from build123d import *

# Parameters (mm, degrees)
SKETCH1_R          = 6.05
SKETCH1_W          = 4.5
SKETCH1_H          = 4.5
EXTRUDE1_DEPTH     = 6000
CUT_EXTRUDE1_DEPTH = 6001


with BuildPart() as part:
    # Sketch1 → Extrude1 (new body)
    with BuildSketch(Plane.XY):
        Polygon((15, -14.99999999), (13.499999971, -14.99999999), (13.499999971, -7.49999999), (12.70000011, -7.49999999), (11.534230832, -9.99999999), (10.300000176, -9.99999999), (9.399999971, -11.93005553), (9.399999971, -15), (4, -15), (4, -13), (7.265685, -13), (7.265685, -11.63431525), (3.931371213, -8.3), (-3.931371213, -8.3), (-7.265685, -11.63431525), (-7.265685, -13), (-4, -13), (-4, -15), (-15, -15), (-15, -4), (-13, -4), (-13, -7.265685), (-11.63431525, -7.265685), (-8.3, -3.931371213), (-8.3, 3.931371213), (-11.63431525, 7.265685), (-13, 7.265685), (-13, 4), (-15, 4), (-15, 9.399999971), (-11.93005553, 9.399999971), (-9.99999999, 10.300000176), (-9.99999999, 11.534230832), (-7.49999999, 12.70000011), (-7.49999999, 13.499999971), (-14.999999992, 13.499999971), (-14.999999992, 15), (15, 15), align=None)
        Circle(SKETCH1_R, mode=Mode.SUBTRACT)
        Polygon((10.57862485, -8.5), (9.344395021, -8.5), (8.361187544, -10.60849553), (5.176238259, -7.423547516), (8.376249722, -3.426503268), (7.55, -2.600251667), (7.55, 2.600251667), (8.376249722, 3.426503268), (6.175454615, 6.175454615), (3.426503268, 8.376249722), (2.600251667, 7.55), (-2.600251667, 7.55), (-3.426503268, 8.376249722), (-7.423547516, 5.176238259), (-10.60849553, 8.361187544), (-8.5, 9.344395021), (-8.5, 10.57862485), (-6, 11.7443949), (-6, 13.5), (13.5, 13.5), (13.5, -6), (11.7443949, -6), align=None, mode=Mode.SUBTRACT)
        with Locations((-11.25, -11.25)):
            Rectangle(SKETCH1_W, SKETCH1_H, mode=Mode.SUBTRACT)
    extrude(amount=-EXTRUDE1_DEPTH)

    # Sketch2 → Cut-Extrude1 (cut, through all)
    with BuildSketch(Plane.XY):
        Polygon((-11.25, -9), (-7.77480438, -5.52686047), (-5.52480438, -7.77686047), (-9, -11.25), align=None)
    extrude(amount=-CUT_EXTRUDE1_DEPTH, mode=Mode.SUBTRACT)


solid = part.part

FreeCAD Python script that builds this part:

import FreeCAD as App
import Part
import Sketcher
from FreeCAD import Vector
Q = App.Units.Quantity

doc = App.newDocument("Part")
body = doc.addObject("PartDesign::Body", "Body")

sketch1 = body.newObject("Sketcher::SketchObject", "Sketch")
sketch1.AttachmentSupport = (doc.getObject("XY_Plane"), [""])
sketch1.MapMode = "FlatFace"
sketch1.addGeometry([
    Part.LineSegment(Vector(13.5, -15, 0), Vector(15, -15, 0)),
    Part.LineSegment(Vector(15, -15, 0), Vector(15, 15, 0)),
    Part.LineSegment(Vector(15, 15, 0), Vector(-15, 15, 0)),
    Part.LineSegment(Vector(-15, 15, 0), Vector(-15, 13.5, 0)),
    Part.LineSegment(Vector(-15, 13.5, 0), Vector(-7.5, 13.5, 0)),
    Part.LineSegment(Vector(-7.5, 13.5, 0), Vector(-7.5, 12.7, 0)),
    Part.LineSegment(Vector(-7.5, 12.7, 0), Vector(-10, 11.5, 0)),
    Part.LineSegment(Vector(-10, 11.5, 0), Vector(-10, 10.3, 0)),
    Part.LineSegment(Vector(-10, 10.3, 0), Vector(-11.9, 9.4, 0)),
    Part.LineSegment(Vector(-11.9, 9.4, 0), Vector(-15, 9.4, 0)),
    Part.LineSegment(Vector(-15, 9.4, 0), Vector(-15, 4, 0)),
    Part.LineSegment(Vector(-15, 4, 0), Vector(-13, 4, 0)),
    Part.LineSegment(Vector(-13, 4, 0), Vector(-13, 7.3, 0)),
    Part.LineSegment(Vector(-13, 7.3, 0), Vector(-11.6, 7.3, 0)),
    Part.LineSegment(Vector(-11.6, 7.3, 0), Vector(-8.3, 3.9, 0)),
    Part.LineSegment(Vector(-8.3, 3.9, 0), Vector(-8.3, -3.9, 0)),
    Part.LineSegment(Vector(-8.3, -3.9, 0), Vector(-11.6, -7.3, 0)),
    Part.LineSegment(Vector(-11.6, -7.3, 0), Vector(-13, -7.3, 0)),
    Part.LineSegment(Vector(-13, -7.3, 0), Vector(-13, -4, 0)),
    Part.LineSegment(Vector(-13, -4, 0), Vector(-15, -4, 0)),
    Part.LineSegment(Vector(-15, -4, 0), Vector(-15, -15, 0)),
    Part.LineSegment(Vector(-15, -15, 0), Vector(-4, -15, 0)),
    Part.LineSegment(Vector(-4, -15, 0), Vector(-4, -13, 0)),
    Part.LineSegment(Vector(-4, -13, 0), Vector(-7.3, -13, 0)),
    Part.LineSegment(Vector(-7.3, -13, 0), Vector(-7.3, -11.6, 0)),
    Part.LineSegment(Vector(-7.3, -11.6, 0), Vector(-3.9, -8.3, 0)),
    Part.LineSegment(Vector(-3.9, -8.3, 0), Vector(3.9, -8.3, 0)),
    Part.LineSegment(Vector(3.9, -8.3, 0), Vector(7.3, -11.6, 0)),
    Part.LineSegment(Vector(7.3, -11.6, 0), Vector(7.3, -13, 0)),
    Part.LineSegment(Vector(7.3, -13, 0), Vector(4, -13, 0)),
    Part.LineSegment(Vector(4, -13, 0), Vector(4, -15, 0)),
    Part.LineSegment(Vector(4, -15, 0), Vector(9.4, -15, 0)),
    Part.LineSegment(Vector(9.4, -15, 0), Vector(9.4, -11.9, 0)),
    Part.LineSegment(Vector(9.4, -11.9, 0), Vector(10.3, -10, 0)),
    Part.LineSegment(Vector(10.3, -10, 0), Vector(11.5, -10, 0)),
    Part.LineSegment(Vector(11.5, -10, 0), Vector(12.7, -7.5, 0)),
    Part.LineSegment(Vector(12.7, -7.5, 0), Vector(13.5, -7.5, 0)),
    Part.LineSegment(Vector(13.5, -7.5, 0), Vector(13.5, -15, 0)),
    Part.LineSegment(Vector(-13.5, -13.5, 0), Vector(-13.5, -9, 0)),
    Part.LineSegment(Vector(-13.5, -9, 0), Vector(-9, -9, 0)),
    Part.LineSegment(Vector(-9, -9, 0), Vector(-9, -13.5, 0)),
    Part.LineSegment(Vector(-9, -13.5, 0), Vector(-13.5, -13.5, 0)),
    Part.LineSegment(Vector(10.6, -8.5, 0), Vector(9.3, -8.5, 0)),
    Part.LineSegment(Vector(9.3, -8.5, 0), Vector(8.4, -10.6, 0)),
    Part.LineSegment(Vector(8.4, -10.6, 0), Vector(5.2, -7.4, 0)),
    Part.LineSegment(Vector(5.2, -7.4, 0), Vector(8.4, -3.4, 0)),
    Part.LineSegment(Vector(8.4, -3.4, 0), Vector(7.5, -2.6, 0)),
    Part.LineSegment(Vector(7.5, -2.6, 0), Vector(7.5, 2.6, 0)),
    Part.LineSegment(Vector(7.5, 2.6, 0), Vector(8.4, 3.4, 0)),
    Part.LineSegment(Vector(8.4, 3.4, 0), Vector(6.2, 6.2, 0)),
    Part.LineSegment(Vector(6.2, 6.2, 0), Vector(3.4, 8.4, 0)),
    Part.LineSegment(Vector(3.4, 8.4, 0), Vector(2.6, 7.5, 0)),
    Part.LineSegment(Vector(2.6, 7.5, 0), Vector(-2.6, 7.5, 0)),
    Part.LineSegment(Vector(-2.6, 7.5, 0), Vector(-3.4, 8.4, 0)),
    Part.LineSegment(Vector(-3.4, 8.4, 0), Vector(-7.4, 5.2, 0)),
    Part.LineSegment(Vector(-7.4, 5.2, 0), Vector(-10.6, 8.4, 0)),
    Part.LineSegment(Vector(-10.6, 8.4, 0), Vector(-8.5, 9.3, 0)),
    Part.LineSegment(Vector(-8.5, 9.3, 0), Vector(-8.5, 10.6, 0)),
    Part.LineSegment(Vector(-8.5, 10.6, 0), Vector(-6, 11.7, 0)),
    Part.LineSegment(Vector(-6, 11.7, 0), Vector(-6, 13.5, 0)),
    Part.LineSegment(Vector(-6, 13.5, 0), Vector(13.5, 13.5, 0)),
    Part.LineSegment(Vector(13.5, 13.5, 0), Vector(13.5, -6, 0)),
    Part.LineSegment(Vector(13.5, -6, 0), Vector(11.7, -6, 0)),
    Part.LineSegment(Vector(11.7, -6, 0), Vector(10.6, -8.5, 0)),
    Part.Circle(Vector(0, 0, 0), Vector(0, 0, 1), 6),
], False)
sketch1.addConstraint([
    Sketcher.Constraint("Coincident", 0, 2, 1, 1),
    Sketcher.Constraint("Coincident", 1, 2, 2, 1),
    Sketcher.Constraint("Coincident", 2, 2, 3, 1),
    Sketcher.Constraint("Coincident", 3, 2, 4, 1),
    Sketcher.Constraint("Coincident", 4, 2, 5, 1),
    Sketcher.Constraint("Coincident", 5, 2, 6, 1),
    Sketcher.Constraint("Coincident", 6, 2, 7, 1),
    Sketcher.Constraint("Coincident", 7, 2, 8, 1),
    Sketcher.Constraint("Coincident", 8, 2, 9, 1),
    Sketcher.Constraint("Coincident", 9, 2, 10, 1),
    Sketcher.Constraint("Coincident", 10, 2, 11, 1),
    Sketcher.Constraint("Coincident", 11, 2, 12, 1),
    Sketcher.Constraint("Coincident", 12, 2, 13, 1),
    Sketcher.Constraint("Coincident", 13, 2, 14, 1),
    Sketcher.Constraint("Coincident", 14, 2, 15, 1),
    Sketcher.Constraint("Coincident", 15, 2, 16, 1),
    Sketcher.Constraint("Coincident", 16, 2, 17, 1),
    Sketcher.Constraint("Coincident", 17, 2, 18, 1),
    Sketcher.Constraint("Coincident", 18, 2, 19, 1),
    Sketcher.Constraint("Coincident", 19, 2, 20, 1),
    Sketcher.Constraint("Coincident", 20, 2, 21, 1),
    Sketcher.Constraint("Coincident", 21, 2, 22, 1),
    Sketcher.Constraint("Coincident", 22, 2, 23, 1),
    Sketcher.Constraint("Coincident", 23, 2, 24, 1),
    Sketcher.Constraint("Coincident", 24, 2, 25, 1),
    Sketcher.Constraint("Coincident", 25, 2, 26, 1),
    Sketcher.Constraint("Coincident", 26, 2, 27, 1),
    Sketcher.Constraint("Coincident", 27, 2, 28, 1),
    Sketcher.Constraint("Coincident", 28, 2, 29, 1),
    Sketcher.Constraint("Coincident", 29, 2, 30, 1),
    Sketcher.Constraint("Coincident", 30, 2, 31, 1),
    Sketcher.Constraint("Coincident", 31, 2, 32, 1),
    Sketcher.Constraint("Coincident", 32, 2, 33, 1),
    Sketcher.Constraint("Coincident", 33, 2, 34, 1),
    Sketcher.Constraint("Coincident", 34, 2, 35, 1),
    Sketcher.Constraint("Coincident", 35, 2, 36, 1),
    Sketcher.Constraint("Coincident", 36, 2, 37, 1),
    Sketcher.Constraint("Coincident", 37, 2, 0, 1),
    Sketcher.Constraint("Coincident", 38, 2, 39, 1),
    Sketcher.Constraint("Coincident", 39, 2, 40, 1),
    Sketcher.Constraint("Coincident", 40, 2, 41, 1),
    Sketcher.Constraint("Coincident", 41, 2, 38, 1),
    Sketcher.Constraint("Coincident", 42, 2, 43, 1),
    Sketcher.Constraint("Coincident", 43, 2, 44, 1),
    Sketcher.Constraint("Coincident", 44, 2, 45, 1),
    Sketcher.Constraint("Coincident", 45, 2, 46, 1),
    Sketcher.Constraint("Coincident", 46, 2, 47, 1),
    Sketcher.Constraint("Coincident", 47, 2, 48, 1),
    Sketcher.Constraint("Coincident", 48, 2, 49, 1),
    Sketcher.Constraint("Coincident", 49, 2, 50, 1),
    Sketcher.Constraint("Coincident", 50, 2, 51, 1),
    Sketcher.Constraint("Coincident", 51, 2, 52, 1),
    Sketcher.Constraint("Coincident", 52, 2, 53, 1),
    Sketcher.Constraint("Coincident", 53, 2, 54, 1),
    Sketcher.Constraint("Coincident", 54, 2, 55, 1),
    Sketcher.Constraint("Coincident", 55, 2, 56, 1),
    Sketcher.Constraint("Coincident", 56, 2, 57, 1),
    Sketcher.Constraint("Coincident", 57, 2, 58, 1),
    Sketcher.Constraint("Coincident", 58, 2, 59, 1),
    Sketcher.Constraint("Coincident", 59, 2, 60, 1),
    Sketcher.Constraint("Coincident", 60, 2, 61, 1),
    Sketcher.Constraint("Coincident", 61, 2, 62, 1),
    Sketcher.Constraint("Coincident", 62, 2, 63, 1),
    Sketcher.Constraint("Coincident", 63, 2, 42, 1),
    Sketcher.Constraint("Horizontal", 0),
    Sketcher.Constraint("Vertical", 1),
    Sketcher.Constraint("Horizontal", 2),
    Sketcher.Constraint("Vertical", 3),
    Sketcher.Constraint("Horizontal", 4),
    Sketcher.Constraint("Vertical", 5),
    Sketcher.Constraint("Vertical", 7),
    Sketcher.Constraint("Horizontal", 9),
    Sketcher.Constraint("Vertical", 10),
    Sketcher.Constraint("Horizontal", 11),
    Sketcher.Constraint("Vertical", 12),
    Sketcher.Constraint("Horizontal", 13),
    Sketcher.Constraint("Vertical", 15),
    Sketcher.Constraint("Horizontal", 17),
    Sketcher.Constraint("Vertical", 18),
    Sketcher.Constraint("Horizontal", 19),
    Sketcher.Constraint("Vertical", 20),
    Sketcher.Constraint("Horizontal", 21),
    Sketcher.Constraint("Vertical", 22),
    Sketcher.Constraint("Horizontal", 23),
    Sketcher.Constraint("Vertical", 24),
    Sketcher.Constraint("Horizontal", 26),
    Sketcher.Constraint("Vertical", 28),
    Sketcher.Constraint("Horizontal", 29),
    Sketcher.Constraint("Vertical", 30),
    Sketcher.Constraint("Horizontal", 31),
    Sketcher.Constraint("Vertical", 32),
    Sketcher.Constraint("Horizontal", 34),
    Sketcher.Constraint("Horizontal", 36),
    Sketcher.Constraint("Vertical", 37),
    Sketcher.Constraint("Vertical", 38),
    Sketcher.Constraint("Horizontal", 39),
    Sketcher.Constraint("Vertical", 40),
    Sketcher.Constraint("Horizontal", 41),
    Sketcher.Constraint("Horizontal", 42),
    Sketcher.Constraint("Vertical", 47),
    Sketcher.Constraint("Horizontal", 52),
    Sketcher.Constraint("Vertical", 57),
    Sketcher.Constraint("Vertical", 59),
    Sketcher.Constraint("Horizontal", 60),
    Sketcher.Constraint("Vertical", 61),
    Sketcher.Constraint("Horizontal", 62),
    Sketcher.Constraint("Coincident", 64, 3, -1, 1),
    Sketcher.Constraint("Symmetric", 0, 2, 2, 2, -1, 1),
    Sketcher.Constraint("Symmetric", 1, 2, 20, 2, -1, 1),
    Sketcher.Constraint("Symmetric", 41, 2, 60, 2, -1, 1),
    Sketcher.Constraint("Symmetric", 24, 2, 27, 2, -2),
    Sketcher.Constraint("Symmetric", 22, 2, 29, 2, -2),
    Sketcher.Constraint("Symmetric", 50, 2, 53, 2, -2),
    Sketcher.Constraint("Symmetric", 13, 2, 16, 2, -1),
    Sketcher.Constraint("Symmetric", 11, 2, 18, 2, -1),
    Sketcher.Constraint("Symmetric", 45, 2, 48, 2, -1),
    Sketcher.Constraint("Parallel", 6, 8),
    Sketcher.Constraint("Perpendicular", 14, 16),
    Sketcher.Constraint("Parallel", 16, 25),
    Sketcher.Constraint("Perpendicular", 25, 27),
    Sketcher.Constraint("Parallel", 33, 35),
    Sketcher.Constraint("Parallel", 35, 43),
    Sketcher.Constraint("Parallel", 27, 44),
    Sketcher.Constraint("Parallel", 44, 46),
    Sketcher.Constraint("Perpendicular", 44, 48),
    Sketcher.Constraint("Perpendicular", 45, 50),
    Sketcher.Constraint("Perpendicular", 46, 51),
    Sketcher.Constraint("Perpendicular", 48, 53),
    Sketcher.Constraint("Perpendicular", 49, 54),
    Sketcher.Constraint("Parallel", 53, 55),
    Sketcher.Constraint("Parallel", 8, 56),
    Sketcher.Constraint("Parallel", 56, 58),
    Sketcher.Constraint("Parallel", 43, 63),
    Sketcher.Constraint("Horizontal", 21, 2, 30, 2),
    Sketcher.Constraint("Horizontal", 4, 2, 59, 2),
    Sketcher.Constraint("Vertical", 3, 2, 9, 2),
    Sketcher.Constraint("Vertical", 37, 2, 60, 2),
    Sketcher.Constraint("Equal", 34, 42),
    Sketcher.Constraint("Equal", 2, 1),
    Sketcher.Constraint("Equal", 0, 3),
    Sketcher.Constraint("Equal", 36, 5),
    Sketcher.Constraint("Equal", 42, 7),
    Sketcher.Constraint("Equal", 31, 10),
    Sketcher.Constraint("Equal", 29, 12),
    Sketcher.Constraint("Equal", 26, 15),
    Sketcher.Constraint("Equal", 21, 20),
    Sketcher.Constraint("Equal", 19, 22),
    Sketcher.Constraint("Equal", 17, 24),
    Sketcher.Constraint("Equal", 9, 32),
    Sketcher.Constraint("Equal", 4, 37),
    Sketcher.Constraint("Equal", 41, 38),
    Sketcher.Constraint("Equal", 52, 47),
    Sketcher.Constraint("Equal", 7, 57),
    Sketcher.Constraint("Equal", 62, 59),
    Sketcher.Constraint("Equal", 60, 61),
    Sketcher.Constraint("Equal", 14, 16),
    Sketcher.Constraint("Equal", 8, 33),
    Sketcher.Constraint("Equal", 49, 50),
    Sketcher.Constraint("Equal", 48, 51),
    Sketcher.Constraint("Equal", 45, 54),
    Sketcher.Constraint("Equal", 44, 55),
    Sketcher.Constraint("Equal", 43, 56),
    Sketcher.Constraint("Equal", 35, 58),
    Sketcher.Constraint("Diameter", 64, 12.1),
    Sketcher.Constraint("DistanceX", 2, 2, 2, 1, 30.0),
    Sketcher.Constraint("DistanceX", 11, 1, 11, 2, 2.0),
    Sketcher.Constraint("DistanceX", 21, 1, 21, 2, 11.0),
    Sketcher.Constraint("Angle", 6, Q("-154.999998 deg")),
    Sketcher.Constraint("DistanceX", 0, 1, 0, 2, 1.5),
    Sketcher.Constraint("DistanceX", 4, 1, 4, 2, 7.5),
    Sketcher.Constraint("DistanceX", 31, 1, 31, 2, 5.4),
    Sketcher.Constraint("DistanceX", 36, 1, 36, 2, 0.8),
    Sketcher.Constraint("DistanceX", 39, 1, 39, 2, 4.5),
    Sketcher.Constraint("DistanceX", 60, 1, 60, 2, 19.5),
    Sketcher.Constraint("DistanceX", 6, 2, -1, 1, 10.0),
    Sketcher.Constraint("DistanceY", -1, 1, 7, 2, 10.3),
    Sketcher.Constraint("DistanceX", 14, 2, -1, 1, 8.3),
    Sketcher.Constraint("DistanceX", -1, 1, 46, 2, 7.55),
    Sketcher.Constraint("Distance", 45, 5.120199),
    Sketcher.Constraint("DistanceX", 13, 1, 13, 2, 1.365685),
    Sketcher.Constraint("DistanceX", 23, 2, 23, 1, 3.265685),
    Sketcher.Constraint("DistanceX", 52, 2, 52, 1, 5.200503),
    Sketcher.Constraint("DistanceX", 62, 2, 62, 1, 1.755605),
    Sketcher.Constraint("DistanceX", -1, 1, 44, 2, 5.176238),
    Sketcher.Constraint("DistanceX", -1, 1, 45, 2, 8.37625),
])
pad1 = body.newObject("PartDesign::Pad", "Pad")
pad1.Profile = sketch1
pad1.Length = 6000
pad1.Reversed = True

sketch2 = body.newObject("Sketcher::SketchObject", "Sketch001")
sketch2.AttachmentSupport = (doc.getObject("XY_Plane"), [""])
sketch2.MapMode = "FlatFace"
sketch2.addGeometry([
    Part.LineSegment(Vector(-7.8, -5.5, 0), Vector(-11.2, -9, 0)),
    Part.LineSegment(Vector(-11.2, -9, 0), Vector(-9, -11.2, 0)),
    Part.LineSegment(Vector(-9, -11.2, 0), Vector(-5.5, -7.8, 0)),
    Part.LineSegment(Vector(-5.5, -7.8, 0), Vector(-7.8, -5.5, 0)),
], False)
sketch2.addConstraint([
    Sketcher.Constraint("Coincident", 0, 2, 1, 1),
    Sketcher.Constraint("Coincident", 1, 2, 2, 1),
    Sketcher.Constraint("Coincident", 2, 2, 3, 1),
    Sketcher.Constraint("Coincident", 3, 2, 0, 1),
    Sketcher.Constraint("Parallel", 0, 2),
    Sketcher.Constraint("Parallel", 1, 3),
    Sketcher.Constraint("Angle", 1, Q("-45 deg")),
    Sketcher.Constraint("DistanceY", 0, 2, -1, 1, 9.0),
    Sketcher.Constraint("DistanceX", 1, 2, -1, 1, 9.0),
    Sketcher.Constraint("DistanceX", 0, 2, -1, 1, 11.25),
    Sketcher.Constraint("DistanceY", 2, 2, -1, 1, 7.77686),
    Sketcher.Constraint("Distance", 0, 4.913215),
])
pocket1 = body.newObject("PartDesign::Pocket", "Pocket")
pocket1.Profile = sketch2
pocket1.Type = "ThroughAll"

doc.recompute()
